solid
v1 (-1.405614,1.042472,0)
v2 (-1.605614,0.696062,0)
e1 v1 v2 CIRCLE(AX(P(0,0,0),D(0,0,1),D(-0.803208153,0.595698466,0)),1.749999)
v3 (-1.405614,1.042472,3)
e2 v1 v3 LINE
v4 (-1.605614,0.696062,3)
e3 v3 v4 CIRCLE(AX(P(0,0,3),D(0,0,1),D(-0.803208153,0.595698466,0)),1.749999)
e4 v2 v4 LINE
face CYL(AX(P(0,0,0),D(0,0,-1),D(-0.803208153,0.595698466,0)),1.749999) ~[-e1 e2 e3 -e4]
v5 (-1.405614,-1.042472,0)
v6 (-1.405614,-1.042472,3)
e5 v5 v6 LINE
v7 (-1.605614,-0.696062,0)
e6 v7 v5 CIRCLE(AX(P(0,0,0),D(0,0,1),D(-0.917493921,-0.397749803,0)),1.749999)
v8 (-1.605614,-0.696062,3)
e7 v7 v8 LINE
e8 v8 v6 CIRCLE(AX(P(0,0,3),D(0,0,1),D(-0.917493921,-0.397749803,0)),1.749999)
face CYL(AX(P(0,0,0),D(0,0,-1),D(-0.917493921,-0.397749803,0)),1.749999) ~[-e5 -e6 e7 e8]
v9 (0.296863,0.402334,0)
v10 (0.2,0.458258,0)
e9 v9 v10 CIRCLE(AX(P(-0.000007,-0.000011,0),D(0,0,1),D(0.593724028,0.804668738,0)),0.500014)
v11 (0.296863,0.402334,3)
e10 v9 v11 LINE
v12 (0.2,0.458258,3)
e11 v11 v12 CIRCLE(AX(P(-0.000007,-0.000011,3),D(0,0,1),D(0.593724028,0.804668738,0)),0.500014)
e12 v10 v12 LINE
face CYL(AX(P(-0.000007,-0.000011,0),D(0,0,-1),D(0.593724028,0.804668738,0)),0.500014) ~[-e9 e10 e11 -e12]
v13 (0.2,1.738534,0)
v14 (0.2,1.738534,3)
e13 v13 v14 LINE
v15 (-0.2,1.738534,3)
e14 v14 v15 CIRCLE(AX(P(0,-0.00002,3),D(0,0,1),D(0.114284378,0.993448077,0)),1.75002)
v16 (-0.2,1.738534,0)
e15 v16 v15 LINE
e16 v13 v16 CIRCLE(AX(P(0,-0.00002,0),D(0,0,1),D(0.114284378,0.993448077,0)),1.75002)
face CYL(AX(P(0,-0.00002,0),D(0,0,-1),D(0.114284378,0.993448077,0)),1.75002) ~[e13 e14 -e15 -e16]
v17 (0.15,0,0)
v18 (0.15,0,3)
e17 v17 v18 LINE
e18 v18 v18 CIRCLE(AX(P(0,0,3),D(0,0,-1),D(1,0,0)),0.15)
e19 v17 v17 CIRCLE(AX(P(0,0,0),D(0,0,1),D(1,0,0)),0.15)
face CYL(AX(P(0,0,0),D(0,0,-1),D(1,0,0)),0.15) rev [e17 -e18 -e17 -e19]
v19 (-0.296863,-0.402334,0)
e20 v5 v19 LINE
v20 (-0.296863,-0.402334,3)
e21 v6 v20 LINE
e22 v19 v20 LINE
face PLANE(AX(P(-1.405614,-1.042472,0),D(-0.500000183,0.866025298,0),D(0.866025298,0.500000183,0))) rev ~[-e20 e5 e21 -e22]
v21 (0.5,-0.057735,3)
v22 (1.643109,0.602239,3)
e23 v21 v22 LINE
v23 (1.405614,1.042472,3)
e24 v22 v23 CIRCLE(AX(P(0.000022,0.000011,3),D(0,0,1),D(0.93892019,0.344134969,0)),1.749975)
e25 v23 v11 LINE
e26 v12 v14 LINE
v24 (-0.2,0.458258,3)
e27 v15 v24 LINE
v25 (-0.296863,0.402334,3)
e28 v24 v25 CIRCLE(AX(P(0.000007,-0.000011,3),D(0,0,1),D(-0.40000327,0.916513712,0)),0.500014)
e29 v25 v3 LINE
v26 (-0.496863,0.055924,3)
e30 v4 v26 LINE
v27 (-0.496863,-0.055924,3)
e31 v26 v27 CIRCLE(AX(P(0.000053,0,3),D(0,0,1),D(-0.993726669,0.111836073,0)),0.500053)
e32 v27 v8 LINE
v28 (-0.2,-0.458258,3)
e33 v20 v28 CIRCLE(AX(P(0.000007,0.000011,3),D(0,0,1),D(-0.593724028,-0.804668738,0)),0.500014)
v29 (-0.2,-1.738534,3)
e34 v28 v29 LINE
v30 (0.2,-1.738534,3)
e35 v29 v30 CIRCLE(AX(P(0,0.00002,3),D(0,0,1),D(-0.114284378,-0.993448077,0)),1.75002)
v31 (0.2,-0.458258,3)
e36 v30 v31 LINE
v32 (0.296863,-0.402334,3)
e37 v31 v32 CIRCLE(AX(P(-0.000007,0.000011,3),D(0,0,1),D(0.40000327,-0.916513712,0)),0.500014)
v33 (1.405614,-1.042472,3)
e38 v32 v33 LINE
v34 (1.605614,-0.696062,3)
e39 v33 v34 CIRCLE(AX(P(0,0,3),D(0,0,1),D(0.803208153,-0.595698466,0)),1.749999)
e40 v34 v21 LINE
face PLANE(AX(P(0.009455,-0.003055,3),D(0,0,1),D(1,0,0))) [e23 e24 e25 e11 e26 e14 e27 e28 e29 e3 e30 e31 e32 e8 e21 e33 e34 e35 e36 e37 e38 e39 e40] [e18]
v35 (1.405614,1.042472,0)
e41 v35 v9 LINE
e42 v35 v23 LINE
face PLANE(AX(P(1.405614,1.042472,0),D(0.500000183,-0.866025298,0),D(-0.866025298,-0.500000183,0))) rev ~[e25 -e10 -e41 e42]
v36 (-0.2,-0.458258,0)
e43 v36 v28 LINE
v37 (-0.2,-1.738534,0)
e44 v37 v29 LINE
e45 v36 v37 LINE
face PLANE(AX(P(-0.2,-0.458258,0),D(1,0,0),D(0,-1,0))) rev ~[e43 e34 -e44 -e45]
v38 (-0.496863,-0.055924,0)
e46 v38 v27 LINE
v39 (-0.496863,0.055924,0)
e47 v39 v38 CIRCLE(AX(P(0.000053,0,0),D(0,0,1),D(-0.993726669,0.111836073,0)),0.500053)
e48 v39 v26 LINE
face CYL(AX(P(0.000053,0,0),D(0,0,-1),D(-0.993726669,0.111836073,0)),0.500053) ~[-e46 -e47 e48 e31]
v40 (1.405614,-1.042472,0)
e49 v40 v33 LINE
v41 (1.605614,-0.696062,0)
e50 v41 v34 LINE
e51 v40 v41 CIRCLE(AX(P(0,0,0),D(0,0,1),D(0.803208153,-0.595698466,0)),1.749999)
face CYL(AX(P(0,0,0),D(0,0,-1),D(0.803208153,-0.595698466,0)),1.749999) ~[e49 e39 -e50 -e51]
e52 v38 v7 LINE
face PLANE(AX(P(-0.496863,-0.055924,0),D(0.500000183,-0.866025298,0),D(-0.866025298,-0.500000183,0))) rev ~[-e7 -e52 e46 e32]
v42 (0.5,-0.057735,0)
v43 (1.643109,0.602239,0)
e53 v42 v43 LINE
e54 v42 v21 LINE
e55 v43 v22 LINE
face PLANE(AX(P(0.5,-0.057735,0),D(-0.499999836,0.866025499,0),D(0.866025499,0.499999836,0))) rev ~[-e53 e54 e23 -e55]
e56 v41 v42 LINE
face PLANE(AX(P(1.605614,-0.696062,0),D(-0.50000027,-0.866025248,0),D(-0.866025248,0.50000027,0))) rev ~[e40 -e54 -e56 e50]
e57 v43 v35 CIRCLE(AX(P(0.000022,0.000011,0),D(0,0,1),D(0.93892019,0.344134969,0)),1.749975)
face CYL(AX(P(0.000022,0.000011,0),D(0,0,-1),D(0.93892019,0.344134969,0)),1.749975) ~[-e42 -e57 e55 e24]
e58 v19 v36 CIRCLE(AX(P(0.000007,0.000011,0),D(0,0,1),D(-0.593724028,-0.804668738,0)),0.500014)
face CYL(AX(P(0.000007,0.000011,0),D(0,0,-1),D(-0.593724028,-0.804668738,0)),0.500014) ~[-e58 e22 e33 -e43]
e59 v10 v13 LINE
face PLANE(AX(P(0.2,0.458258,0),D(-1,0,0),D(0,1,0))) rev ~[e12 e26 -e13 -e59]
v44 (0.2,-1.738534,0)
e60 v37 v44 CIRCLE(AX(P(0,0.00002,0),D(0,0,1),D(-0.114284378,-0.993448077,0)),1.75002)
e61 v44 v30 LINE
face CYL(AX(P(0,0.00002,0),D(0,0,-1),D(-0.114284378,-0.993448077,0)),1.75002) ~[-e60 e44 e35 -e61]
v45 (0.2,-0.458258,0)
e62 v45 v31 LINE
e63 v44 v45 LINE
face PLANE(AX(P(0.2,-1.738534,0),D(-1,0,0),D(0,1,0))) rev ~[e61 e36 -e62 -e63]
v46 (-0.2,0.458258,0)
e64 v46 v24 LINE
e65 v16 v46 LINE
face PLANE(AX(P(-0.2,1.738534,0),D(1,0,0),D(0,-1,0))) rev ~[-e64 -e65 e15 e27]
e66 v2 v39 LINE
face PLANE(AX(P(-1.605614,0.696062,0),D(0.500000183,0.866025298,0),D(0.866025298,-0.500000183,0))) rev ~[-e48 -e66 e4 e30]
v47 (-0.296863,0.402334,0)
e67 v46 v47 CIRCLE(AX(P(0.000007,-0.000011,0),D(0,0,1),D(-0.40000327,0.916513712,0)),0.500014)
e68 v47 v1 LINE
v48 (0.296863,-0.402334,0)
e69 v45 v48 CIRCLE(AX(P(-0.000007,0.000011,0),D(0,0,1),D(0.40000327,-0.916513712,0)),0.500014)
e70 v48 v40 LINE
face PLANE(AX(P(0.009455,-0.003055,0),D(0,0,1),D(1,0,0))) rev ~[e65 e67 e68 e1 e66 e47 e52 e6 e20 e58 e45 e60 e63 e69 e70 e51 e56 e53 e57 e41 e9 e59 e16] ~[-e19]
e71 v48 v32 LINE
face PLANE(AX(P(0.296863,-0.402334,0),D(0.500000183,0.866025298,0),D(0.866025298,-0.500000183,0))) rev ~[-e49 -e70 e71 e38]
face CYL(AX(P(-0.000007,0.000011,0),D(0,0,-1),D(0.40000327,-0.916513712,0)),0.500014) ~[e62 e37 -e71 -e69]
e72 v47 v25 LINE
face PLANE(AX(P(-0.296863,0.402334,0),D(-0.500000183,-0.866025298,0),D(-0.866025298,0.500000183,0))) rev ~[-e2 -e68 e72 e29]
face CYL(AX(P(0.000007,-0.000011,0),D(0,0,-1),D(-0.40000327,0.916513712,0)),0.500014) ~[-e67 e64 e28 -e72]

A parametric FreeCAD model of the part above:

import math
import FreeCAD as App
import Part
import Sketcher

V = App.Vector
Q = App.Units.Quantity

doc = App.newDocument("Part")
body = doc.addObject("PartDesign::Body", "Body")

# Sketch on XY plane
sketch1 = body.newObject("Sketcher::SketchObject", "Sketch")
sketch1.AttachmentSupport = (doc.getObject("XY_Plane"), [""])
sketch1.MapMode = "FlatFace"
sketch1.addGeometry([
    Part.LineSegment(V(0.2, 0.458258, 0), V(0.2, 1.738534, 0)),  # 0
    Part.ArcOfCircle(Part.Circle(V(0, -0.00002, 0), V(0, 0, 1), 1.75002), math.radians(83.437649), math.radians(96.562351)),  # 1
    Part.LineSegment(V(-0.2, 1.738534, 0), V(-0.2, 0.458258, 0)),  # 2
    Part.ArcOfCircle(Part.Circle(V(0.000007, -0.000011, 0), V(0, 0, 1), 0.500014), math.radians(113.578383), math.radians(126.421724)),  # 3
    Part.LineSegment(V(-0.296863, 0.402334, 0), V(-1.405614, 1.042472, 0)),  # 4
    Part.ArcOfCircle(Part.Circle(V(0, 0, 0), V(0, 0, 1), 1.749999), math.radians(143.43756), math.radians(156.562417)),  # 5
    Part.LineSegment(V(-1.605614, 0.696062, 0), V(-0.496863, 0.055924, 0)),  # 6
    Part.ArcOfCircle(Part.Circle(V(0.000053, 0, 0), V(0, 0, 1), 0.500053), math.radians(173.578832), math.radians(186.421168)),  # 7
    Part.LineSegment(V(-0.496863, -0.055924, 0), V(-1.605614, -0.696062, 0)),  # 8
    Part.ArcOfCircle(Part.Circle(V(0, 0, 0), V(0, 0, 1), 1.749999), math.radians(-156.562417), math.radians(-143.43756)),  # 9
    Part.LineSegment(V(-1.405614, -1.042472, 0), V(-0.296863, -0.402334, 0)),  # 10
    Part.ArcOfCircle(Part.Circle(V(0.000007, 0.000011, 0), V(0, 0, 1), 0.500014), math.radians(-126.421724), math.radians(-113.578383)),  # 11
    Part.LineSegment(V(-0.2, -0.458258, 0), V(-0.2, -1.738534, 0)),  # 12
    Part.ArcOfCircle(Part.Circle(V(0, 0.00002, 0), V(0, 0, 1), 1.75002), math.radians(-96.562351), math.radians(-83.437649)),  # 13
    Part.LineSegment(V(0.2, -1.738534, 0), V(0.2, -0.458258, 0)),  # 14
    Part.ArcOfCircle(Part.Circle(V(-0.000007, 0.000011, 0), V(0, 0, 1), 0.500014), math.radians(-66.421617), math.radians(-53.578276)),  # 15
    Part.LineSegment(V(0.296863, -0.402334, 0), V(1.405614, -1.042472, 0)),  # 16
    Part.ArcOfCircle(Part.Circle(V(0, 0, 0), V(0, 0, 1), 1.749999), math.radians(-36.56244), math.radians(-23.437583)),  # 17
    Part.LineSegment(V(1.605614, -0.696062, 0), V(0.5, -0.057735, 0)),  # 18
    Part.LineSegment(V(0.5, -0.057735, 0), V(1.643109, 0.602239, 0)),  # 19
    Part.ArcOfCircle(Part.Circle(V(0.000022, 0.000011, 0), V(0, 0, 1), 1.749975), math.radians(20.129), math.radians(36.562565)),  # 20
    Part.LineSegment(V(1.405614, 1.042472, 0), V(0.296863, 0.402334, 0)),  # 21
    Part.ArcOfCircle(Part.Circle(V(-0.000007, -0.000011, 0), V(0, 0, 1), 0.500014), math.radians(53.578276), math.radians(66.421617)),  # 22
], False)
sketch1.addConstraint([
    Sketcher.Constraint("Coincident", 0, 2, 1, 1),
    Sketcher.Constraint("Coincident", 1, 2, 2, 1),
    Sketcher.Constraint("Coincident", 2, 2, 3, 1),
    Sketcher.Constraint("Coincident", 3, 2, 4, 1),
    Sketcher.Constraint("Coincident", 4, 2, 5, 1),
    Sketcher.Constraint("Coincident", 5, 2, 6, 1),
    Sketcher.Constraint("Coincident", 6, 2, 7, 1),
    Sketcher.Constraint("Coincident", 7, 2, 8, 1),
    Sketcher.Constraint("Coincident", 8, 2, 9, 1),
    Sketcher.Constraint("Coincident", 9, 2, 10, 1),
    Sketcher.Constraint("Coincident", 10, 2, 11, 1),
    Sketcher.Constraint("Coincident", 11, 2, 12, 1),
    Sketcher.Constraint("Coincident", 12, 2, 13, 1),
    Sketcher.Constraint("Coincident", 13, 2, 14, 1),
    Sketcher.Constraint("Coincident", 14, 2, 15, 1),
    Sketcher.Constraint("Coincident", 15, 2, 16, 1),
    Sketcher.Constraint("Coincident", 16, 2, 17, 1),
    Sketcher.Constraint("Coincident", 17, 2, 18, 1),
    Sketcher.Constraint("Coincident", 18, 2, 19, 1),
    Sketcher.Constraint("Coincident", 19, 2, 20, 1),
    Sketcher.Constraint("Coincident", 20, 2, 21, 1),
    Sketcher.Constraint("Coincident", 21, 2, 22, 1),
    Sketcher.Constraint("Coincident", 22, 2, 0, 1),
    Sketcher.Constraint("Vertical", 0),
    Sketcher.Constraint("Vertical", 2),
    Sketcher.Constraint("Vertical", 12),
    Sketcher.Constraint("Vertical", 14),
    Sketcher.Constraint("Coincident", 5, 3, -1, 1),
    Sketcher.Constraint("Coincident", 9, 3, -1, 1),
    Sketcher.Constraint("Coincident", 17, 3, -1, 1),
    Sketcher.Constraint("Equal", 5, 9),
    Sketcher.Constraint("Equal", 3, 11),
    Sketcher.Constraint("Equal", 1, 13),
    Sketcher.Constraint("Equal", 11, 15),
    Sketcher.Constraint("Equal", 9, 17),
    Sketcher.Constraint("Equal", 15, 22),
    Sketcher.Constraint("Symmetric", 1, 3, 13, 3, -1, 1),
    Sketcher.Constraint("Symmetric", 3, 3, 15, 3, -1, 1),
    Sketcher.Constraint("Symmetric", 11, 3, 22, 3, -1, 1),
    Sketcher.Constraint("Symmetric", 9, 2, 20, 2, -1, 1),
    Sketcher.Constraint("Symmetric", 11, 3, 15, 3, -2),
    Sketcher.Constraint("Symmetric", 0, 2, 1, 2, -2),
    Sketcher.Constraint("Symmetric", 6, 2, 7, 2, -1),
    Sketcher.Constraint("Parallel", 4, 6),
    Sketcher.Constraint("Parallel", 8, 10),
    Sketcher.Constraint("Parallel", 6, 16),
    Sketcher.Constraint("Parallel", 16, 18),
    Sketcher.Constraint("Parallel", 10, 19),
    Sketcher.Constraint("Parallel", 19, 21),
    Sketcher.Constraint("Horizontal", 15, 3, 20, 3),
    Sketcher.Constraint("Horizontal", 12, 2, 13, 2),
    Sketcher.Constraint("Horizontal", 10, 2, 15, 2),
    Sketcher.Constraint("Horizontal", 9, 2, 16, 2),
    Sketcher.Constraint("Horizontal", 8, 2, 17, 2),
    Sketcher.Constraint("Horizontal", 4, 2, 20, 2),
    Sketcher.Constraint("Vertical", 2, 2, 11, 2),
    Sketcher.Constraint("Equal", 4, 6),
    Sketcher.Constraint("Angle", 4, Q("149.999988 deg")),
    Sketcher.Constraint("Radius", 5, 1.749999),
    Sketcher.Constraint("DistanceX", -1, 1, 0, 2, 0.2),
    Sketcher.Constraint("DistanceX", -1, 1, 18, 2, 0.5),
    Sketcher.Constraint("DistanceX", 5, 2, 4, 2, 0.2),
    Sketcher.Constraint("Radius", 1, 1.75002),
    Sketcher.Constraint("Radius", 3, 0.500014),
    Sketcher.Constraint("Radius", 7, 0.500053),
    Sketcher.Constraint("Radius", 20, 1.749975),
    Sketcher.Constraint("DistanceY", 12, 2, 10, 2, 1.3362),
    Sketcher.Constraint("DistanceY", 15, 2, 18, 2, 0.344599),
    Sketcher.Constraint("DistanceY", 17, 2, 19, 2, 1.298301),
    Sketcher.Constraint("Distance", 19, 1.319948),
])
pad1 = body.newObject("PartDesign::Pad", "Pad")
pad1.Profile = sketch1
pad1.Length = 3

# Sketch on XY plane
sketch2 = body.newObject("Sketcher::SketchObject", "Sketch001")
sketch2.AttachmentSupport = (doc.getObject("XY_Plane"), [""])
sketch2.MapMode = "FlatFace"
sketch2.addGeometry(Part.Circle(V(0, 0, 0), V(0, 0, 1), 0.15), False)
sketch2.addConstraint([
    Sketcher.Constraint("Coincident", 0, 3, -1, 1),
    Sketcher.Constraint("Diameter", 0, 0.3),
])
pocket1 = body.newObject("PartDesign::Pocket", "Pocket")
pocket1.Profile = sketch2
pocket1.Length = 5
pocket1.Reversed = True

doc.recompute()
